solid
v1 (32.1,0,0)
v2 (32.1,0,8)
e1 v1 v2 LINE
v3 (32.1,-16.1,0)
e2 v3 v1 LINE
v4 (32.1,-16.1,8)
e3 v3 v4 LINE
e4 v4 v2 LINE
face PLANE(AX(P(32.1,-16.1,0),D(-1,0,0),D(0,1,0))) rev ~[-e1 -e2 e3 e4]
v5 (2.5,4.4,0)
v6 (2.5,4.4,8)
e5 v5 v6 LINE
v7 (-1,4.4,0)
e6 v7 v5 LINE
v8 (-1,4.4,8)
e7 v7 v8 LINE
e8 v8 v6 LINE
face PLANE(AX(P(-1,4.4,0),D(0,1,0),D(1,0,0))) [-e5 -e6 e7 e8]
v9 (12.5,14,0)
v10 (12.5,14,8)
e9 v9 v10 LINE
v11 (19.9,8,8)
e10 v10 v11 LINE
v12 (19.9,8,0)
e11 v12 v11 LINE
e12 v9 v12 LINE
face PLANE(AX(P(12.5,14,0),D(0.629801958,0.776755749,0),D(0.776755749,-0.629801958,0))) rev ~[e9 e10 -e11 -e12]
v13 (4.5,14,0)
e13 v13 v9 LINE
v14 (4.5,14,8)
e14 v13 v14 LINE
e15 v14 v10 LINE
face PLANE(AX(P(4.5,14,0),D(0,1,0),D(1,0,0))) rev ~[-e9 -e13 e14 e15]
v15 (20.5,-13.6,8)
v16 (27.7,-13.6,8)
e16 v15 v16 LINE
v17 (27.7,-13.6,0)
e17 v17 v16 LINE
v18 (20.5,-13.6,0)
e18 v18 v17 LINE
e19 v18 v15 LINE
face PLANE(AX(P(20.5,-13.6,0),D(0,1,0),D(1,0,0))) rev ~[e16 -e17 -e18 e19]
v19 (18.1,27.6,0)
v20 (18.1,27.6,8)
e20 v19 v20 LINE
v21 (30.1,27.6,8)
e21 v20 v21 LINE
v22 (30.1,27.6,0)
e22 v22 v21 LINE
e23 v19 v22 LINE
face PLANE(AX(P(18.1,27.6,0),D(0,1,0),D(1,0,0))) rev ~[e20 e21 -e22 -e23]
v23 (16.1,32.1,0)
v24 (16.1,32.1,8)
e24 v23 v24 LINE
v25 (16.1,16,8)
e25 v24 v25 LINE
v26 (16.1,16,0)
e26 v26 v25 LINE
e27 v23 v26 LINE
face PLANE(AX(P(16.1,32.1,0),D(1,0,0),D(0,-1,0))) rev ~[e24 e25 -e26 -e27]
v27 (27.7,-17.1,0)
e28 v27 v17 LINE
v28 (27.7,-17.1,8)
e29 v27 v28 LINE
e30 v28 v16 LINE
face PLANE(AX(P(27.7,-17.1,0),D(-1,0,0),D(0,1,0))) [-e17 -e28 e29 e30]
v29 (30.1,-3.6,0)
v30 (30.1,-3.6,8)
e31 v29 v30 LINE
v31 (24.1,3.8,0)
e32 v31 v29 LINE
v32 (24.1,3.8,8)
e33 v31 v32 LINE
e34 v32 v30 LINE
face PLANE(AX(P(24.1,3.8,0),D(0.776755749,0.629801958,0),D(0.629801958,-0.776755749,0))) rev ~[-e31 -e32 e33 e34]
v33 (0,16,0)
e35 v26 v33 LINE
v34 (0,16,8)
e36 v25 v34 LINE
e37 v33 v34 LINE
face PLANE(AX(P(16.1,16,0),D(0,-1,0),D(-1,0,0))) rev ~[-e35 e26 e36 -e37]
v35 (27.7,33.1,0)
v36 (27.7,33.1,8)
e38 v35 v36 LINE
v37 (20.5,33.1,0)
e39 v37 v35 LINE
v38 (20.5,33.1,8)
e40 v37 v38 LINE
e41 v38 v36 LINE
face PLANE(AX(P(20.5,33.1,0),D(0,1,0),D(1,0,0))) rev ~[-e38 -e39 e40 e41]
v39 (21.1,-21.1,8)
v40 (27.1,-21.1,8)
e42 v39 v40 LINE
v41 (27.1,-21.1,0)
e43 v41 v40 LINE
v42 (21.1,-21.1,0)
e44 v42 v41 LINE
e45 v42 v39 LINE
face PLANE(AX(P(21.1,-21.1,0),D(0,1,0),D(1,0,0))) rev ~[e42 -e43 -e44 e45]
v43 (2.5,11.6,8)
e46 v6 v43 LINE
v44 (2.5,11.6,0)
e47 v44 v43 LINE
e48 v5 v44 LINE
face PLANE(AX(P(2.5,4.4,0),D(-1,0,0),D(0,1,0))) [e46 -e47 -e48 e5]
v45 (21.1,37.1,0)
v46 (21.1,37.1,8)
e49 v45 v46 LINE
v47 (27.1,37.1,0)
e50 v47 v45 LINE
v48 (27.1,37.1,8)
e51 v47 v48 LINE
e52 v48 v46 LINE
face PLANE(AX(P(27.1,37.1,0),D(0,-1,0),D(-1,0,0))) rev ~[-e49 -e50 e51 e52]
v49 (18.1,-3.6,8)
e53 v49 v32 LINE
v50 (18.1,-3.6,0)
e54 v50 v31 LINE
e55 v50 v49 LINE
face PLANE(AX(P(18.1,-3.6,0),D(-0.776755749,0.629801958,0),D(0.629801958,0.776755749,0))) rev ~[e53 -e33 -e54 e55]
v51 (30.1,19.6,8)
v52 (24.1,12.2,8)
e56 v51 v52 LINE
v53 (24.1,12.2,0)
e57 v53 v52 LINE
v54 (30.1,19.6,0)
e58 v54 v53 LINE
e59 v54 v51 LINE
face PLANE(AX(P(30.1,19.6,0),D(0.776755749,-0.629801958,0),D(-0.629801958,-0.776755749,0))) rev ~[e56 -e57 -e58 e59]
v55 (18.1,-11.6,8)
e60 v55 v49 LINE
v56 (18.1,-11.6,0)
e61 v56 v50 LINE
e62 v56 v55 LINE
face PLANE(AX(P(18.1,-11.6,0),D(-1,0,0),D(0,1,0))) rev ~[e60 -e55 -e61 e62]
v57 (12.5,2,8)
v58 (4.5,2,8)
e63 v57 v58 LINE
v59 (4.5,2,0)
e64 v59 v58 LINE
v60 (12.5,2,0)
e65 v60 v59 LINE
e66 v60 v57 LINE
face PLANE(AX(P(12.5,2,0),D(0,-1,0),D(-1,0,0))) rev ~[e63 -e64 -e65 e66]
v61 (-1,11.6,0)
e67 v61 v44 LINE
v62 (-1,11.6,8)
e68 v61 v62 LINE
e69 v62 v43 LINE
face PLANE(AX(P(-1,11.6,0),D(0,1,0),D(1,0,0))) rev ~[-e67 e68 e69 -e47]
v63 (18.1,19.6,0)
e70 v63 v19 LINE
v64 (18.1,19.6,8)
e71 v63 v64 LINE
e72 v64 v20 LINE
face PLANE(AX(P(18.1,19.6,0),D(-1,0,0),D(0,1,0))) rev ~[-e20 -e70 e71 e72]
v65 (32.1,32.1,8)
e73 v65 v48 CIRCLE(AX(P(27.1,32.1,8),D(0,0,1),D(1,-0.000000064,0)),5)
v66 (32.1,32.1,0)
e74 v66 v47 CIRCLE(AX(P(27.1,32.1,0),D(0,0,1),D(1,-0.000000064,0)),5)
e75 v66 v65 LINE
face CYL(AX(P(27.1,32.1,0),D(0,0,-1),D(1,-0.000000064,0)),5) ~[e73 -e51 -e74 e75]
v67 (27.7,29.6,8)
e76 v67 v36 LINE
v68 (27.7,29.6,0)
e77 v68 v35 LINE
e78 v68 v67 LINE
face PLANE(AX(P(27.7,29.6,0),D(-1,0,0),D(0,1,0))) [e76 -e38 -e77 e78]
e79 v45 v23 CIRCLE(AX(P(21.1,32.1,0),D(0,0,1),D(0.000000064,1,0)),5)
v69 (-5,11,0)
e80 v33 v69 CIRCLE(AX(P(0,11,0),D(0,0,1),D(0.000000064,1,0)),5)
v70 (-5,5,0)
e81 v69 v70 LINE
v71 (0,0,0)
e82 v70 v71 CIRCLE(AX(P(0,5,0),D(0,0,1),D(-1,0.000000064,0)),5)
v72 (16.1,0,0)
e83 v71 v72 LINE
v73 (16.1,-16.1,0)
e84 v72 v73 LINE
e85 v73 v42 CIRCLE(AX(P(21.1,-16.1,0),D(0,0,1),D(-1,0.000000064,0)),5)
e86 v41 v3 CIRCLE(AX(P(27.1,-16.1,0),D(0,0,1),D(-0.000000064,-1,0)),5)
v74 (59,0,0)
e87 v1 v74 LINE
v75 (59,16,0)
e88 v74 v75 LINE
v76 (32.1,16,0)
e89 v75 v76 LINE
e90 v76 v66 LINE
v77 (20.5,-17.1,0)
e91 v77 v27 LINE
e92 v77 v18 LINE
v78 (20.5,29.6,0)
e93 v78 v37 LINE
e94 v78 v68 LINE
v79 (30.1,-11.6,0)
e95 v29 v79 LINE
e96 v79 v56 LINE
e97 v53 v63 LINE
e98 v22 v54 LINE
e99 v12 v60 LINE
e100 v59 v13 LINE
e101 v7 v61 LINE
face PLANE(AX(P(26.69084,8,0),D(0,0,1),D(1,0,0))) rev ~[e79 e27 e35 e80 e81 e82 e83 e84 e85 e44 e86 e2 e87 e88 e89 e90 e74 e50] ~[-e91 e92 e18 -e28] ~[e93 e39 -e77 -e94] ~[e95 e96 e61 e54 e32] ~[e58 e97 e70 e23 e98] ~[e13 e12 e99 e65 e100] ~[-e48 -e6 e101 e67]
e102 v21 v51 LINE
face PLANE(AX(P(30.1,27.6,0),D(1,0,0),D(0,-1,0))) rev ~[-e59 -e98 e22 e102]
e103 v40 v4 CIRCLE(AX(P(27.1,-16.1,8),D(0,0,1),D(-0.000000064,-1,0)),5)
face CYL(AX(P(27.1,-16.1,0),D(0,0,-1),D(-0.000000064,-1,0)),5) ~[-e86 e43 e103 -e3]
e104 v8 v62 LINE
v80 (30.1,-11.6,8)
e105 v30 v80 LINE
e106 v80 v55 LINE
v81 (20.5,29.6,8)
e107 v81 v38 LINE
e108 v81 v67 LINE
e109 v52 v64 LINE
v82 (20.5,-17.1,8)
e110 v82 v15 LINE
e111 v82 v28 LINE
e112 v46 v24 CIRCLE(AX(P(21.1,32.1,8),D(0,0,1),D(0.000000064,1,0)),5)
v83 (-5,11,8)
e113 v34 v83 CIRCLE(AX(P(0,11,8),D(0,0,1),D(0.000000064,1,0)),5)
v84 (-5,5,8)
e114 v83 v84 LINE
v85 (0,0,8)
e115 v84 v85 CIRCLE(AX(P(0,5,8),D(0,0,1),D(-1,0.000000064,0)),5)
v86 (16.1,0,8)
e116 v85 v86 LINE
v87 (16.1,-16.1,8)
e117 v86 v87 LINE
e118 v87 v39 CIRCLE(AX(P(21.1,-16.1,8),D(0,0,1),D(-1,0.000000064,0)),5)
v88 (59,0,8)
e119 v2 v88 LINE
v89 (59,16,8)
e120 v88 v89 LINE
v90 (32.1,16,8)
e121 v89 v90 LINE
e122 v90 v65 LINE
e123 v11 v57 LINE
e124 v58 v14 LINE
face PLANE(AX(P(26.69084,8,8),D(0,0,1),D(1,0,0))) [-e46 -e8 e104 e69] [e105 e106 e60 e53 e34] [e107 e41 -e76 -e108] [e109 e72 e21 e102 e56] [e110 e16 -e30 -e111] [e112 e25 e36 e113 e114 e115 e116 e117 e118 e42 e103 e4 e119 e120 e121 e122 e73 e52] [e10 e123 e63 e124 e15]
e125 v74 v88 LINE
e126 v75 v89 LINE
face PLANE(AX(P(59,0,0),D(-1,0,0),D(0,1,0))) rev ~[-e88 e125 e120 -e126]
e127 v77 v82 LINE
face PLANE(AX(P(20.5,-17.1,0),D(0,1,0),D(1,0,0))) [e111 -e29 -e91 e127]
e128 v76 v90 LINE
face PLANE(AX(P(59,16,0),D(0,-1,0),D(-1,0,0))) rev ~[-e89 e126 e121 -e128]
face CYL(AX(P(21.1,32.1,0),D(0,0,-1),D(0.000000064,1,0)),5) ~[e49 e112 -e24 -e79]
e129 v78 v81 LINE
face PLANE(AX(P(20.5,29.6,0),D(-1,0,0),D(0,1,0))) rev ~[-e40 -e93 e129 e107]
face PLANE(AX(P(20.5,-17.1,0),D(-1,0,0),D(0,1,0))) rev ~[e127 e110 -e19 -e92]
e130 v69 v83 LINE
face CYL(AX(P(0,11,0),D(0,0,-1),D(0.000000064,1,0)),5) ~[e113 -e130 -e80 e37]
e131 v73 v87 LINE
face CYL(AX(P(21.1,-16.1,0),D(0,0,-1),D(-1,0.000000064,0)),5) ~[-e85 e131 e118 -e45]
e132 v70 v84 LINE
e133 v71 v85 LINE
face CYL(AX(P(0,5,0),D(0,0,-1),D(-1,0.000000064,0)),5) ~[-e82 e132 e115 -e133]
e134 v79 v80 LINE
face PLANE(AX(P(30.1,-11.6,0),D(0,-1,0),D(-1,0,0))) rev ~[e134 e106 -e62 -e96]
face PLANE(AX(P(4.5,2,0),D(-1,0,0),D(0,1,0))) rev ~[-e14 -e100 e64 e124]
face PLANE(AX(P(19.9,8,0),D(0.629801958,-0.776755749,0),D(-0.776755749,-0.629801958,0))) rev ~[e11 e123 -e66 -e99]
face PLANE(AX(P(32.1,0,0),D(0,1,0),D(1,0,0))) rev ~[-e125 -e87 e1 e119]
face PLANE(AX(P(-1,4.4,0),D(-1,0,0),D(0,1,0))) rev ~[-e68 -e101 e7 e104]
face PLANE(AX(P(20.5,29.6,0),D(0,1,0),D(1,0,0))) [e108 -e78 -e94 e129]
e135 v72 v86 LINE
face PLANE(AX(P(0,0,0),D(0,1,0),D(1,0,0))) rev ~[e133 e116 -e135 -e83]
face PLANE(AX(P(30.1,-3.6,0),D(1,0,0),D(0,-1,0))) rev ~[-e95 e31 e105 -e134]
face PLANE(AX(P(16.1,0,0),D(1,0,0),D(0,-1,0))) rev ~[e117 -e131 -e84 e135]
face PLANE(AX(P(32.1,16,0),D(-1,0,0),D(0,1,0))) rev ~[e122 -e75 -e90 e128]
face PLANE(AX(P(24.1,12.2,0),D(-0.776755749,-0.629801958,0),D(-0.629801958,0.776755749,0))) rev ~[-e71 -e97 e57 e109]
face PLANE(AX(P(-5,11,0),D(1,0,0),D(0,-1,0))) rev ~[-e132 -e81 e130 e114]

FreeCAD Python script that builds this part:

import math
import FreeCAD as App
import Part
import Sketcher
Q = App.Units.Quantity

doc = App.newDocument("Part")
body = doc.addObject("PartDesign::Body", "Body")

# Sketch on XY plane
sketch1 = doc.addObject("Sketcher::SketchObject", "Sketch")
body.addObject(sketch1)
sketch1.AttachmentSupport = (doc.XY_Plane, [""])
sketch1.MapMode = "FlatFace"
sketch1.addGeometry([
    Part.ArcOfCircle(Part.Circle(App.Vector(0, 5, 0), App.Vector(0, 0, 1), 5), math.radians(180), math.radians(270)),  # 0
    Part.LineSegment(App.Vector(0, 0, 0), App.Vector(16.1, 0, 0)),  # 1
    Part.LineSegment(App.Vector(16.1, 0, 0), App.Vector(16.1, -16.1, 0)),  # 2
    Part.ArcOfCircle(Part.Circle(App.Vector(21.1, -16.1, 0), App.Vector(0, 0, 1), 5), math.radians(180), math.radians(270)),  # 3
    Part.LineSegment(App.Vector(21.1, -21.1, 0), App.Vector(27.1, -21.1, 0)),  # 4
    Part.ArcOfCircle(Part.Circle(App.Vector(27.1, -16.1, 0), App.Vector(0, 0, 1), 5), math.radians(-90), math.radians(0)),  # 5
    Part.LineSegment(App.Vector(32.1, -16.1, 0), App.Vector(32.1, 0, 0)),  # 6
    Part.LineSegment(App.Vector(32.1, 0, 0), App.Vector(59, 0, 0)),  # 7
    Part.LineSegment(App.Vector(59, 0, 0), App.Vector(59, 16, 0)),  # 8
    Part.LineSegment(App.Vector(59, 16, 0), App.Vector(32.1, 16, 0)),  # 9
    Part.LineSegment(App.Vector(32.1, 16, 0), App.Vector(32.1, 32.1, 0)),  # 10
    Part.ArcOfCircle(Part.Circle(App.Vector(27.1, 32.1, 0), App.Vector(0, 0, 1), 5), math.radians(0), math.radians(90)),  # 11
    Part.LineSegment(App.Vector(27.1, 37.1, 0), App.Vector(21.1, 37.1, 0)),  # 12
    Part.ArcOfCircle(Part.Circle(App.Vector(21.1, 32.1, 0), App.Vector(0, 0, 1), 5), math.radians(90), math.radians(180)),  # 13
    Part.LineSegment(App.Vector(16.1, 32.1, 0), App.Vector(16.1, 16, 0)),  # 14
    Part.LineSegment(App.Vector(16.1, 16, 0), App.Vector(0, 16, 0)),  # 15
    Part.ArcOfCircle(Part.Circle(App.Vector(0, 11, 0), App.Vector(0, 0, 1), 5), math.radians(90), math.radians(180)),  # 16
    Part.LineSegment(App.Vector(-5, 11, 0), App.Vector(-5, 5, 0)),  # 17
    Part.LineSegment(App.Vector(27.7, -17.1, 0), App.Vector(20.5, -17.1, 0)),  # 18
    Part.LineSegment(App.Vector(20.5, -17.1, 0), App.Vector(20.5, -13.6, 0)),  # 19
    Part.LineSegment(App.Vector(20.5, -13.6, 0), App.Vector(27.7, -13.6, 0)),  # 20
    Part.LineSegment(App.Vector(27.7, -13.6, 0), App.Vector(27.7, -17.1, 0)),  # 21
    Part.LineSegment(App.Vector(24.1, 3.8, 0), App.Vector(30.1, -3.6, 0)),  # 22
    Part.LineSegment(App.Vector(30.1, -3.6, 0), App.Vector(30.1, -11.6, 0)),  # 23
    Part.LineSegment(App.Vector(30.1, -11.6, 0), App.Vector(18.1, -11.6, 0)),  # 24
    Part.LineSegment(App.Vector(18.1, -11.6, 0), App.Vector(18.1, -3.6, 0)),  # 25
    Part.LineSegment(App.Vector(18.1, -3.6, 0), App.Vector(24.1, 3.8, 0)),  # 26
    Part.LineSegment(App.Vector(2.5, 4.4, 0), App.Vector(-1, 4.4, 0)),  # 27
    Part.LineSegment(App.Vector(-1, 4.4, 0), App.Vector(-1, 11.6, 0)),  # 28
    Part.LineSegment(App.Vector(-1, 11.6, 0), App.Vector(2.5, 11.6, 0)),  # 29
    Part.LineSegment(App.Vector(2.5, 11.6, 0), App.Vector(2.5, 4.4, 0)),  # 30
    Part.LineSegment(App.Vector(19.9, 8, 0), App.Vector(12.5, 2, 0)),  # 31
    Part.LineSegment(App.Vector(12.5, 2, 0), App.Vector(4.5, 2, 0)),  # 32
    Part.LineSegment(App.Vector(4.5, 2, 0), App.Vector(4.5, 14, 0)),  # 33
    Part.LineSegment(App.Vector(4.5, 14, 0), App.Vector(12.5, 14, 0)),  # 34
    Part.LineSegment(App.Vector(12.5, 14, 0), App.Vector(19.9, 8, 0)),  # 35
    Part.LineSegment(App.Vector(24.1, 12.2, 0), App.Vector(18.1, 19.6, 0)),  # 36
    Part.LineSegment(App.Vector(18.1, 19.6, 0), App.Vector(18.1, 27.6, 0)),  # 37
    Part.LineSegment(App.Vector(18.1, 27.6, 0), App.Vector(30.1, 27.6, 0)),  # 38
    Part.LineSegment(App.Vector(30.1, 27.6, 0), App.Vector(30.1, 19.6, 0)),  # 39
    Part.LineSegment(App.Vector(30.1, 19.6, 0), App.Vector(24.1, 12.2, 0)),  # 40
    Part.LineSegment(App.Vector(27.7, 29.6, 0), App.Vector(20.5, 29.6, 0)),  # 41
    Part.LineSegment(App.Vector(20.5, 29.6, 0), App.Vector(20.5, 33.1, 0)),  # 42
    Part.LineSegment(App.Vector(20.5, 33.1, 0), App.Vector(27.7, 33.1, 0)),  # 43
    Part.LineSegment(App.Vector(27.7, 33.1, 0), App.Vector(27.7, 29.6, 0)),  # 44
], False)
sketch1.addConstraint([
    Sketcher.Constraint("Tangent", 0, 2, 1, 1),
    Sketcher.Constraint("Coincident", 1, 2, 2, 1),
    Sketcher.Constraint("Tangent", 2, 2, 3, 1),
    Sketcher.Constraint("Tangent", 3, 2, 4, 1),
    Sketcher.Constraint("Tangent", 4, 2, 5, 1),
    Sketcher.Constraint("Tangent", 5, 2, 6, 1),
    Sketcher.Constraint("Coincident", 6, 2, 7, 1),
    Sketcher.Constraint("Coincident", 7, 2, 8, 1),
    Sketcher.Constraint("Coincident", 8, 2, 9, 1),
    Sketcher.Constraint("Coincident", 9, 2, 10, 1),
    Sketcher.Constraint("Tangent", 10, 2, 11, 1),
    Sketcher.Constraint("Tangent", 11, 2, 12, 1),
    Sketcher.Constraint("Tangent", 12, 2, 13, 1),
    Sketcher.Constraint("Tangent", 13, 2, 14, 1),
    Sketcher.Constraint("Coincident", 14, 2, 15, 1),
    Sketcher.Constraint("Tangent", 15, 2, 16, 1),
    Sketcher.Constraint("Tangent", 16, 2, 17, 1),
    Sketcher.Constraint("Tangent", 17, 2, 0, 1),
    Sketcher.Constraint("Coincident", 18, 2, 19, 1),
    Sketcher.Constraint("Coincident", 19, 2, 20, 1),
    Sketcher.Constraint("Coincident", 20, 2, 21, 1),
    Sketcher.Constraint("Coincident", 21, 2, 18, 1),
    Sketcher.Constraint("Coincident", 22, 2, 23, 1),
    Sketcher.Constraint("Coincident", 23, 2, 24, 1),
    Sketcher.Constraint("Coincident", 24, 2, 25, 1),
    Sketcher.Constraint("Coincident", 25, 2, 26, 1),
    Sketcher.Constraint("Coincident", 26, 2, 22, 1),
    Sketcher.Constraint("Coincident", 27, 2, 28, 1),
    Sketcher.Constraint("Coincident", 28, 2, 29, 1),
    Sketcher.Constraint("Coincident", 29, 2, 30, 1),
    Sketcher.Constraint("Coincident", 30, 2, 27, 1),
    Sketcher.Constraint("Coincident", 31, 2, 32, 1),
    Sketcher.Constraint("Coincident", 32, 2, 33, 1),
    Sketcher.Constraint("Coincident", 33, 2, 34, 1),
    Sketcher.Constraint("Coincident", 34, 2, 35, 1),
    Sketcher.Constraint("Coincident", 35, 2, 31, 1),
    Sketcher.Constraint("Coincident", 36, 2, 37, 1),
    Sketcher.Constraint("Coincident", 37, 2, 38, 1),
    Sketcher.Constraint("Coincident", 38, 2, 39, 1),
    Sketcher.Constraint("Coincident", 39, 2, 40, 1),
    Sketcher.Constraint("Coincident", 40, 2, 36, 1),
    Sketcher.Constraint("Coincident", 41, 2, 42, 1),
    Sketcher.Constraint("Coincident", 42, 2, 43, 1),
    Sketcher.Constraint("Coincident", 43, 2, 44, 1),
    Sketcher.Constraint("Coincident", 44, 2, 41, 1),
    Sketcher.Constraint("Horizontal", 1),
    Sketcher.Constraint("Vertical", 2),
    Sketcher.Constraint("Horizontal", 4),
    Sketcher.Constraint("Vertical", 6),
    Sketcher.Constraint("Horizontal", 7),
    Sketcher.Constraint("Vertical", 8),
    Sketcher.Constraint("Horizontal", 9),
    Sketcher.Constraint("Vertical", 10),
    Sketcher.Constraint("Horizontal", 12),
    Sketcher.Constraint("Vertical", 14),
    Sketcher.Constraint("Horizontal", 15),
    Sketcher.Constraint("Vertical", 17),
    Sketcher.Constraint("Horizontal", 18),
    Sketcher.Constraint("Vertical", 19),
    Sketcher.Constraint("Horizontal", 20),
    Sketcher.Constraint("Vertical", 21),
    Sketcher.Constraint("Vertical", 23),
    Sketcher.Constraint("Horizontal", 24),
    Sketcher.Constraint("Vertical", 25),
    Sketcher.Constraint("Horizontal", 27),
    Sketcher.Constraint("Vertical", 28),
    Sketcher.Constraint("Horizontal", 29),
    Sketcher.Constraint("Vertical", 30),
    Sketcher.Constraint("Horizontal", 32),
    Sketcher.Constraint("Vertical", 33),
    Sketcher.Constraint("Horizontal", 34),
    Sketcher.Constraint("Vertical", 37),
    Sketcher.Constraint("Horizontal", 38),
    Sketcher.Constraint("Vertical", 39),
    Sketcher.Constraint("Horizontal", 41),
    Sketcher.Constraint("Vertical", 42),
    Sketcher.Constraint("Horizontal", 43),
    Sketcher.Constraint("Vertical", 44),
    Sketcher.Constraint("Coincident", 0, 2, -1, 1),
    Sketcher.Constraint("Equal", 0, 3),
    Sketcher.Constraint("Equal", 3, 5),
    Sketcher.Constraint("Equal", 5, 11),
    Sketcher.Constraint("Equal", 11, 13),
    Sketcher.Constraint("Equal", 13, 16),
    Sketcher.Constraint("PointOnObject", 6, 2, -1),
    Sketcher.Constraint("Perpendicular", 22, 31),
    Sketcher.Constraint("Perpendicular", 26, 35),
    Sketcher.Constraint("Perpendicular", 31, 36),
    Sketcher.Constraint("Perpendicular", 35, 40),
    Sketcher.Constraint("Horizontal", 9, 2, 14, 2),
    Sketcher.Constraint("Horizontal", 22, 2, 25, 2),
    Sketcher.Constraint("Horizontal", 36, 2, 39, 2),
    Sketcher.Constraint("Vertical", 5, 3, 11, 3),
    Sketcher.Constraint("Vertical", 3, 3, 13, 3),
    Sketcher.Constraint("Vertical", 31, 2, 34, 2),
    Sketcher.Constraint("Vertical", 25, 2, 36, 2),
    Sketcher.Constraint("Vertical", 23, 2, 38, 2),
    Sketcher.Constraint("Vertical", 26, 2, 40, 2),
    Sketcher.Constraint("Vertical", 19, 2, 41, 2),
    Sketcher.Constraint("Vertical", 21, 2, 43, 2),
    Sketcher.Constraint("Equal", 15, 2),
    Sketcher.Constraint("Equal", 6, 10),
    Sketcher.Constraint("Equal", 12, 17),
    Sketcher.Constraint("Equal", 29, 19),
    Sketcher.Constraint("Equal", 34, 23),
    Sketcher.Constraint("Equal", 43, 28),
    Sketcher.Constraint("Equal", 38, 33),
    Sketcher.Constraint("Equal", 25, 37),
    Sketcher.Constraint("Equal", 21, 42),
    Sketcher.Constraint("Radius", 0, Q("5 mm")),
    Sketcher.Constraint("DistanceX", 4, 1, 4, 2, Q("6 mm")),
    Sketcher.Constraint("DistanceX", 24, 2, 24, 1, Q("12 mm")),
    Sketcher.Constraint("DistanceX", 32, 2, 32, 1, Q("8 mm")),
    Sketcher.Constraint("DistanceX", 1, 1, 1, 2, Q("16.1 mm")),
    Sketcher.Constraint("DistanceX", 7, 1, 7, 2, Q("26.9 mm")),
    Sketcher.Constraint("DistanceX", 18, 2, 18, 1, Q("7.2 mm")),
    Sketcher.Constraint("DistanceX", 27, 2, 27, 1, Q("3.5 mm")),
    Sketcher.Constraint("DistanceX", 27, 2, -1, 1, Q("1 mm")),
    Sketcher.Constraint("DistanceY", -1, 1, 31, 2, Q("2 mm")),
    Sketcher.Constraint("DistanceY", 18, 2, 3, 3, Q("1 mm")),
    Sketcher.Constraint("DistanceX", 22, 2, 6, 2, Q("2 mm")),
    Sketcher.Constraint("DistanceY", 20, 2, 22, 2, Q("10 mm")),
    Sketcher.Constraint("DistanceX", 30, 2, 31, 2, Q("10 mm")),
    Sketcher.Constraint("DistanceY", 37, 2, 41, 2, Q("2 mm")),
    Sketcher.Constraint("DistanceY", 13, 3, 42, 2, Q("1 mm")),
    Sketcher.Constraint("DistanceX", -1, 1, 18, 2, Q("20.5 mm")),
    Sketcher.Constraint("DistanceY", -1, 1, 26, 2, Q("3.8 mm")),
    Sketcher.Constraint("DistanceY", -1, 1, 27, 2, Q("4.4 mm")),
])
pad1 = doc.addObject("PartDesign::Pad", "Pad")
body.addObject(pad1)
pad1.Profile = sketch1
pad1.Length = 8

doc.recompute()
